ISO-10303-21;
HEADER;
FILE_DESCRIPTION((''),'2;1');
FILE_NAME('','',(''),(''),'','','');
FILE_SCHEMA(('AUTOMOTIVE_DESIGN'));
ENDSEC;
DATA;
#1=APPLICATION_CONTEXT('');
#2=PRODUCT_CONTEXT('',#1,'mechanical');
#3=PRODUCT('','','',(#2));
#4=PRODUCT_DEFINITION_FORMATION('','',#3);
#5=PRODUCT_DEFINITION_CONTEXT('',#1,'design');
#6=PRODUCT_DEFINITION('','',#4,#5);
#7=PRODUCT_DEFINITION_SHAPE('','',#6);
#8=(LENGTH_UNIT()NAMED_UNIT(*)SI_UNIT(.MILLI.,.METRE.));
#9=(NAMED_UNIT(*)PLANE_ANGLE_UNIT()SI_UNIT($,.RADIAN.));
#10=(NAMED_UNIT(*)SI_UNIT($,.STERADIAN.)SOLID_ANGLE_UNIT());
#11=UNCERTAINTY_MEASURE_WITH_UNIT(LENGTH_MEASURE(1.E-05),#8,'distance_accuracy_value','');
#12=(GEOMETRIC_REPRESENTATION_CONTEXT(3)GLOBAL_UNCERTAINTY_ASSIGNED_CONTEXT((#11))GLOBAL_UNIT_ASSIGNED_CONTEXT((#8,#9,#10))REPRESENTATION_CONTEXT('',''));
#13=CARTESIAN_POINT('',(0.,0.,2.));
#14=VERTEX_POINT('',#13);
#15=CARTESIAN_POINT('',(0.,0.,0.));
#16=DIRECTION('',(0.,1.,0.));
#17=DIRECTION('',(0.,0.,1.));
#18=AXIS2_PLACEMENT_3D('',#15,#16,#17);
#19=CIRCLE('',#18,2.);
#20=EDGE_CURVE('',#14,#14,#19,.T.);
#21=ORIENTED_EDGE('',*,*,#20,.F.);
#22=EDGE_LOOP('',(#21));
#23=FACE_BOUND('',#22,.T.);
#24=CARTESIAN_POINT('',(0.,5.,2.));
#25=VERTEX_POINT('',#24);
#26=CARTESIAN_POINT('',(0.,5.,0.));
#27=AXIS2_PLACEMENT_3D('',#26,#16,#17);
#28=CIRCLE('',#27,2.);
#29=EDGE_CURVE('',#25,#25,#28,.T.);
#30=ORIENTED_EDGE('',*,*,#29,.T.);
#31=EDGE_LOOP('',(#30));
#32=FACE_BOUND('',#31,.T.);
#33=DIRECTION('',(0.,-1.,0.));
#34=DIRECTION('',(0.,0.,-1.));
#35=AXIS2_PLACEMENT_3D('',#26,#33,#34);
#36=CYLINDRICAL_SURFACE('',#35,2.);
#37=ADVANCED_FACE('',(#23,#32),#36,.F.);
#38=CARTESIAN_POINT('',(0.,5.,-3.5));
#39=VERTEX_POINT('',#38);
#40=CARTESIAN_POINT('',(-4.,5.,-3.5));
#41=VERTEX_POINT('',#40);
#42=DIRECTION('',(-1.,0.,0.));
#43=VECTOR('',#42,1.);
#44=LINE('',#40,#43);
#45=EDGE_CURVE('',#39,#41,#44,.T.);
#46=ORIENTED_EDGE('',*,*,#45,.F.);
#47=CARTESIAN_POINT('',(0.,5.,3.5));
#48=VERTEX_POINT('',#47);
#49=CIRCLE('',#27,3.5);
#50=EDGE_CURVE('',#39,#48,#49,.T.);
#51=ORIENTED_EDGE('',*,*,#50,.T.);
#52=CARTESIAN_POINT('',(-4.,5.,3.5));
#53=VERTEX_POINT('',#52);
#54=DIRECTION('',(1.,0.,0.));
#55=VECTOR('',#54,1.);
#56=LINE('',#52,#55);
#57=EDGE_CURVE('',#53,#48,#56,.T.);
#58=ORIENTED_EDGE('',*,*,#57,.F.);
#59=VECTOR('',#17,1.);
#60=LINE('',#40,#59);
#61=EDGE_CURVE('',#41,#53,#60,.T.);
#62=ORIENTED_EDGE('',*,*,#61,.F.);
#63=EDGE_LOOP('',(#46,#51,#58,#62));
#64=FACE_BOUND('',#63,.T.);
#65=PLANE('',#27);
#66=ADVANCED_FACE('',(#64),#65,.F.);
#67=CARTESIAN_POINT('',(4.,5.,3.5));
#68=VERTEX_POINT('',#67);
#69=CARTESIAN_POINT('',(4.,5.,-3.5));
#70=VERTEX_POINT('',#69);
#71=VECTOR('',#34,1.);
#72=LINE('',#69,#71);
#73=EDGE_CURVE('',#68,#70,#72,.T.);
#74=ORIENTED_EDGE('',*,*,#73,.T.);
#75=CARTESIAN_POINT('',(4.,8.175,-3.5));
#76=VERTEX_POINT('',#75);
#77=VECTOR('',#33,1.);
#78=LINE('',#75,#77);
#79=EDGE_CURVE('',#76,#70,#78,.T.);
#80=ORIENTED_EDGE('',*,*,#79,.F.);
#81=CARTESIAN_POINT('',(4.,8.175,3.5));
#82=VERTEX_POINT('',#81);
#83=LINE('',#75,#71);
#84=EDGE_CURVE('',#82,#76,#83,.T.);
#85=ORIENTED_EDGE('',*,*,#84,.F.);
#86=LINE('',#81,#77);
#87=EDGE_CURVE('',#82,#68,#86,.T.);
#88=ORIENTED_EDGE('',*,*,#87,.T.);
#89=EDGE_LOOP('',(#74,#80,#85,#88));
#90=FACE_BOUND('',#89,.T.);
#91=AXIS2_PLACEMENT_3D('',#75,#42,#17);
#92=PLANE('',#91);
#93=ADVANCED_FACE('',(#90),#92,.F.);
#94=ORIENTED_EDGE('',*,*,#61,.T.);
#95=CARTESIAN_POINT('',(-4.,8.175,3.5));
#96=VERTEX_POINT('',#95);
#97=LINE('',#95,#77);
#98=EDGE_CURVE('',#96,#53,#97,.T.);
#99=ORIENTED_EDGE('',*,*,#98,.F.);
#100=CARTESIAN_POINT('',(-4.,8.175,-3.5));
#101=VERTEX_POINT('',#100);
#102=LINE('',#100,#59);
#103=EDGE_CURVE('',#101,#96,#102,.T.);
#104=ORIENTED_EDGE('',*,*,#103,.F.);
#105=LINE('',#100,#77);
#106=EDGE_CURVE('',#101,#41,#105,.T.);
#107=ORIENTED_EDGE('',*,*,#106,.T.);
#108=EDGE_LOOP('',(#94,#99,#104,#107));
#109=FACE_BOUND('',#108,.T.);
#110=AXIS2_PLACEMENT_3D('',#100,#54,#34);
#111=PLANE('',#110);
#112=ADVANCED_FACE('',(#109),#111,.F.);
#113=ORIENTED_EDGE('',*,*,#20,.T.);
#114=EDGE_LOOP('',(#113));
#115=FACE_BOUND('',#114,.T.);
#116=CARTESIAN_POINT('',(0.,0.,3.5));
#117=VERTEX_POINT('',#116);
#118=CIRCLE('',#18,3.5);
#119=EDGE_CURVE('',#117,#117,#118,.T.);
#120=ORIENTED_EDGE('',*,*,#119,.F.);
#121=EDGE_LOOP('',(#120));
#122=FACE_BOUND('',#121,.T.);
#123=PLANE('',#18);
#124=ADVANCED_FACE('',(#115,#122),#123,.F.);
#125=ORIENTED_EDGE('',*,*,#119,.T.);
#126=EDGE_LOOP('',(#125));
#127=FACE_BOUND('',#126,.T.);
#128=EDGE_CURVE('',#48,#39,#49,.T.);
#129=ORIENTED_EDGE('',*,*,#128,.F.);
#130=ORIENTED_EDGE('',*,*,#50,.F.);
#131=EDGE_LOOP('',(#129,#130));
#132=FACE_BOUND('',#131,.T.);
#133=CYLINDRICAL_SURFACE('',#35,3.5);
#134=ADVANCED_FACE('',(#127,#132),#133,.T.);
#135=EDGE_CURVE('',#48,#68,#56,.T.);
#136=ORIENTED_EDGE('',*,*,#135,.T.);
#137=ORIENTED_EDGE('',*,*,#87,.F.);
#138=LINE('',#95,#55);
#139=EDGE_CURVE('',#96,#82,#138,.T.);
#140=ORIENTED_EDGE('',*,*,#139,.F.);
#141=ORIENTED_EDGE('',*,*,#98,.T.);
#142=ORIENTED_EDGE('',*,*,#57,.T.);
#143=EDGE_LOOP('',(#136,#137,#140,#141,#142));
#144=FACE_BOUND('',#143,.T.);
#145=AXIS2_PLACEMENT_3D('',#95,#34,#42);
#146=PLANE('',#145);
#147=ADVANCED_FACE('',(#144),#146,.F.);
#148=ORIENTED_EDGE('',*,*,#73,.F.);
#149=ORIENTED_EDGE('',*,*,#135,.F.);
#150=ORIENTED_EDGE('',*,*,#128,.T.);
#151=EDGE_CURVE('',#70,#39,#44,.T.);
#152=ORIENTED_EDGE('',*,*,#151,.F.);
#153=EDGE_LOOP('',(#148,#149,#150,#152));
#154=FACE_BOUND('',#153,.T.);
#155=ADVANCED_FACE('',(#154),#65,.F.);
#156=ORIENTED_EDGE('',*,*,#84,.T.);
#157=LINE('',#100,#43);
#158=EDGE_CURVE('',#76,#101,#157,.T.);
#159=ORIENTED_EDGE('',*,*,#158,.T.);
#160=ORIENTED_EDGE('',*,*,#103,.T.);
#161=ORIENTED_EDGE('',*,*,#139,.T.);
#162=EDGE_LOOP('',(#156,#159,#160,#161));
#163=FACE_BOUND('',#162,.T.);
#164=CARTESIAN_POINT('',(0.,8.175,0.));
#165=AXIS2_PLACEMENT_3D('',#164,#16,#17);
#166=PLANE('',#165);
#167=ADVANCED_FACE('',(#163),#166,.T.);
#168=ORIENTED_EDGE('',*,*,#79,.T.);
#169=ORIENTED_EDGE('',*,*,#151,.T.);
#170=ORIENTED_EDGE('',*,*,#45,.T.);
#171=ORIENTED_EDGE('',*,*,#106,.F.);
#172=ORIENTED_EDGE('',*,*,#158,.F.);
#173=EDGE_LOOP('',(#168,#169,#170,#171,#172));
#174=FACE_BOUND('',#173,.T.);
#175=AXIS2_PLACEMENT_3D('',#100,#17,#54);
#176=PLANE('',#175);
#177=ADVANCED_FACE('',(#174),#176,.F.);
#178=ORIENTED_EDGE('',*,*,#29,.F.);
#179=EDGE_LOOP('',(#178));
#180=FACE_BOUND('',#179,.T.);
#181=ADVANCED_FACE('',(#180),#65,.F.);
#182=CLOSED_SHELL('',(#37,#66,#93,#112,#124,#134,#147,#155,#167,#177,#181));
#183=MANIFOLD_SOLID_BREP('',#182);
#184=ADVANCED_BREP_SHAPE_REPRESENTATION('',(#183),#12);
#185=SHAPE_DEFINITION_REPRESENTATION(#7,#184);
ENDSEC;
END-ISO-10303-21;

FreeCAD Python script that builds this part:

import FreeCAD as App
import Part
import Sketcher

V = App.Vector


def add_polygon(sketch, points):
    """Adds a closed chain of lines whose ends are joined by coincident constraints."""
    first, n = sketch.GeometryCount, len(points)
    for a, b in zip(points, points[1:] + points[:1]):
        sketch.addGeometry(Part.LineSegment(App.Vector(*a, 0), App.Vector(*b, 0)), False)
    for i in range(n):
        sketch.addConstraint(Sketcher.Constraint("Coincident", first + i, 2, first + (i + 1) % n, 1))

doc = App.newDocument("Part")
body = doc.addObject("PartDesign::Body", "Body")

# Sketch on XZ plane
sketch1 = body.newObject("Sketcher::SketchObject", "Sketch")
sketch1.AttachmentSupport = (doc.getObject("XZ_Plane"), [""])
sketch1.MapMode = "FlatFace"
sketch1.addGeometry([
    Part.Circle(V(0, 0, 0), V(0, 0, 1), 3.5),
    Part.Circle(V(0, 0, 0), V(0, 0, 1), 2),
], False)
sketch1.addConstraint([
    Sketcher.Constraint("Coincident", 0, 3, -1, 1),
    Sketcher.Constraint("Coincident", 1, 3, -1, 1),
    Sketcher.Constraint("Diameter", 0, 7.0),
    Sketcher.Constraint("Diameter", 1, 4.0),
])
pad1 = body.newObject("PartDesign::Pad", "Pad")
pad1.Profile = sketch1
pad1.Length = 5
pad1.Reversed = True

# Sketch on XZ plane
sketch2 = body.newObject("Sketcher::SketchObject", "Sketch001")
sketch2.AttachmentSupport = (doc.getObject("XZ_Plane"), [""])
sketch2.MapMode = "FlatFace"
sketch2.AttachmentOffset = App.Placement(V(0, 0, -5), App.Rotation())
add_polygon(sketch2, [(-4, -3.5), (-4, 3.5), (4, 3.5), (4, -3.5)])  # lines 0-3
sketch2.addConstraint([
    Sketcher.Constraint("Vertical", 0),
    Sketcher.Constraint("Horizontal", 1),
    Sketcher.Constraint("Vertical", 2),
    Sketcher.Constraint("Horizontal", 3),
    Sketcher.Constraint("Symmetric", 0, 2, 2, 2, -1, 1),
    Sketcher.Constraint("DistanceX", 1, 1, 1, 2, 8.0),
    Sketcher.Constraint("DistanceY", 0, 1, 0, 2, 7.0),
])
pad2 = body.newObject("PartDesign::Pad", "Pad001")
pad2.Profile = sketch2
pad2.Length = 3.175
pad2.Reversed = True

doc.recompute()
